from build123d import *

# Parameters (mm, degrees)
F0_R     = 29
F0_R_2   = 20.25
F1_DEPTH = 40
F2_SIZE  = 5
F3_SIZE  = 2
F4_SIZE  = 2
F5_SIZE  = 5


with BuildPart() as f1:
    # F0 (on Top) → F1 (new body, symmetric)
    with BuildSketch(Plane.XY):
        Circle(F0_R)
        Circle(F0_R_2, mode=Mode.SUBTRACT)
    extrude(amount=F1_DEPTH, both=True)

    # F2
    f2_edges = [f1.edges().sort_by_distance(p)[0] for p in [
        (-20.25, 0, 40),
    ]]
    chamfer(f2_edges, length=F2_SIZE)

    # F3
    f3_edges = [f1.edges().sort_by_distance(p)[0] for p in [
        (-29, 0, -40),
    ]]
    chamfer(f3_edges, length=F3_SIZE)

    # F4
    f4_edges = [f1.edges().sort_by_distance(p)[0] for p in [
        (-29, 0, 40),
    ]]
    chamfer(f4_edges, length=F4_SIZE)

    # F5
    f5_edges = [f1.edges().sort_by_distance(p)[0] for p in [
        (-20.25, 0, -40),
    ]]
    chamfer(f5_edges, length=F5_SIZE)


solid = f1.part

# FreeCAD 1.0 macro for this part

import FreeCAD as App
import Part
import Sketcher

V = App.Vector


def edges_at(feature, points):
    """Names of the edges that pass closest to the given points."""
    edges = feature.Shape.Edges
    near = lambda p: min(range(len(edges)), key=lambda i: edges[i].distToShape(Part.Vertex(*p))[0])
    return sorted({f"Edge{near(p) + 1}" for p in points})

doc = App.newDocument("Part")
params = doc.addObject("Spreadsheet::Sheet", "Params")
for row, (alias, value) in enumerate([
    ("sketch1_diameter", "58 mm"),
    ("sketch1_diameter2", "40.5 mm"),
    ("pad1_length", "80 mm"),
    ("chamfer_size", "5 mm"),
    ("chamfer2_size", "2 mm"),
    ("chamfer3_size", "2 mm"),
    ("chamfer4_size", "5 mm"),
], start=1):
    params.set(f"A{row}", alias)
    params.set(f"B{row}", "=" + value)
    params.setAlias(f"B{row}", alias)

body = doc.addObject("PartDesign::Body", "Body")

# Sketch on XY plane
sketch1 = body.newObject("Sketcher::SketchObject", "Sketch")
sketch1.AttachmentSupport = (doc.getObject("XY_Plane"), [""])
sketch1.MapMode = "FlatFace"
sketch1.addGeometry([
    Part.Circle(V(0, 0, 0), V(0, 0, 1), 29),
    Part.Circle(V(0, 0, 0), V(0, 0, 1), 20.25),
], False)
sketch1.addConstraint([
    Sketcher.Constraint("Coincident", 0, 3, -1, 1),
    Sketcher.Constraint("Coincident", 1, 3, -1, 1),
    Sketcher.Constraint("Diameter", 0, 58.0),
    Sketcher.Constraint("Diameter", 1, 40.5),
])
sketch1.setExpression("Constraints[2]", "Params.sketch1_diameter")
sketch1.setExpression("Constraints[3]", "Params.sketch1_diameter2")
pad1 = body.newObject("PartDesign::Pad", "Pad")
pad1.Profile = sketch1
pad1.setExpression("Length", "Params.pad1_length")
pad1.Midplane = True
doc.recompute()

chamfer = body.newObject("PartDesign::Chamfer", "Chamfer")
chamfer.Base = (pad1, edges_at(pad1, [(-20.25, 0, 40)]))
chamfer.setExpression("Size", "Params.chamfer_size")
doc.recompute()

chamfer2 = body.newObject("PartDesign::Chamfer", "Chamfer001")
chamfer2.Base = (chamfer, edges_at(chamfer, [(-29, 0, -40)]))
chamfer2.setExpression("Size", "Params.chamfer2_size")
doc.recompute()

chamfer3 = body.newObject("PartDesign::Chamfer", "Chamfer002")
chamfer3.Base = (chamfer2, edges_at(chamfer2, [(-29, 0, 40)]))
chamfer3.setExpression("Size", "Params.chamfer3_size")
doc.recompute()

chamfer4 = body.newObject("PartDesign::Chamfer", "Chamfer003")
chamfer4.Base = (chamfer3, edges_at(chamfer3, [(-20.25, 0, -40)]))
chamfer4.setExpression("Size", "Params.chamfer4_size")

doc.recompute()
